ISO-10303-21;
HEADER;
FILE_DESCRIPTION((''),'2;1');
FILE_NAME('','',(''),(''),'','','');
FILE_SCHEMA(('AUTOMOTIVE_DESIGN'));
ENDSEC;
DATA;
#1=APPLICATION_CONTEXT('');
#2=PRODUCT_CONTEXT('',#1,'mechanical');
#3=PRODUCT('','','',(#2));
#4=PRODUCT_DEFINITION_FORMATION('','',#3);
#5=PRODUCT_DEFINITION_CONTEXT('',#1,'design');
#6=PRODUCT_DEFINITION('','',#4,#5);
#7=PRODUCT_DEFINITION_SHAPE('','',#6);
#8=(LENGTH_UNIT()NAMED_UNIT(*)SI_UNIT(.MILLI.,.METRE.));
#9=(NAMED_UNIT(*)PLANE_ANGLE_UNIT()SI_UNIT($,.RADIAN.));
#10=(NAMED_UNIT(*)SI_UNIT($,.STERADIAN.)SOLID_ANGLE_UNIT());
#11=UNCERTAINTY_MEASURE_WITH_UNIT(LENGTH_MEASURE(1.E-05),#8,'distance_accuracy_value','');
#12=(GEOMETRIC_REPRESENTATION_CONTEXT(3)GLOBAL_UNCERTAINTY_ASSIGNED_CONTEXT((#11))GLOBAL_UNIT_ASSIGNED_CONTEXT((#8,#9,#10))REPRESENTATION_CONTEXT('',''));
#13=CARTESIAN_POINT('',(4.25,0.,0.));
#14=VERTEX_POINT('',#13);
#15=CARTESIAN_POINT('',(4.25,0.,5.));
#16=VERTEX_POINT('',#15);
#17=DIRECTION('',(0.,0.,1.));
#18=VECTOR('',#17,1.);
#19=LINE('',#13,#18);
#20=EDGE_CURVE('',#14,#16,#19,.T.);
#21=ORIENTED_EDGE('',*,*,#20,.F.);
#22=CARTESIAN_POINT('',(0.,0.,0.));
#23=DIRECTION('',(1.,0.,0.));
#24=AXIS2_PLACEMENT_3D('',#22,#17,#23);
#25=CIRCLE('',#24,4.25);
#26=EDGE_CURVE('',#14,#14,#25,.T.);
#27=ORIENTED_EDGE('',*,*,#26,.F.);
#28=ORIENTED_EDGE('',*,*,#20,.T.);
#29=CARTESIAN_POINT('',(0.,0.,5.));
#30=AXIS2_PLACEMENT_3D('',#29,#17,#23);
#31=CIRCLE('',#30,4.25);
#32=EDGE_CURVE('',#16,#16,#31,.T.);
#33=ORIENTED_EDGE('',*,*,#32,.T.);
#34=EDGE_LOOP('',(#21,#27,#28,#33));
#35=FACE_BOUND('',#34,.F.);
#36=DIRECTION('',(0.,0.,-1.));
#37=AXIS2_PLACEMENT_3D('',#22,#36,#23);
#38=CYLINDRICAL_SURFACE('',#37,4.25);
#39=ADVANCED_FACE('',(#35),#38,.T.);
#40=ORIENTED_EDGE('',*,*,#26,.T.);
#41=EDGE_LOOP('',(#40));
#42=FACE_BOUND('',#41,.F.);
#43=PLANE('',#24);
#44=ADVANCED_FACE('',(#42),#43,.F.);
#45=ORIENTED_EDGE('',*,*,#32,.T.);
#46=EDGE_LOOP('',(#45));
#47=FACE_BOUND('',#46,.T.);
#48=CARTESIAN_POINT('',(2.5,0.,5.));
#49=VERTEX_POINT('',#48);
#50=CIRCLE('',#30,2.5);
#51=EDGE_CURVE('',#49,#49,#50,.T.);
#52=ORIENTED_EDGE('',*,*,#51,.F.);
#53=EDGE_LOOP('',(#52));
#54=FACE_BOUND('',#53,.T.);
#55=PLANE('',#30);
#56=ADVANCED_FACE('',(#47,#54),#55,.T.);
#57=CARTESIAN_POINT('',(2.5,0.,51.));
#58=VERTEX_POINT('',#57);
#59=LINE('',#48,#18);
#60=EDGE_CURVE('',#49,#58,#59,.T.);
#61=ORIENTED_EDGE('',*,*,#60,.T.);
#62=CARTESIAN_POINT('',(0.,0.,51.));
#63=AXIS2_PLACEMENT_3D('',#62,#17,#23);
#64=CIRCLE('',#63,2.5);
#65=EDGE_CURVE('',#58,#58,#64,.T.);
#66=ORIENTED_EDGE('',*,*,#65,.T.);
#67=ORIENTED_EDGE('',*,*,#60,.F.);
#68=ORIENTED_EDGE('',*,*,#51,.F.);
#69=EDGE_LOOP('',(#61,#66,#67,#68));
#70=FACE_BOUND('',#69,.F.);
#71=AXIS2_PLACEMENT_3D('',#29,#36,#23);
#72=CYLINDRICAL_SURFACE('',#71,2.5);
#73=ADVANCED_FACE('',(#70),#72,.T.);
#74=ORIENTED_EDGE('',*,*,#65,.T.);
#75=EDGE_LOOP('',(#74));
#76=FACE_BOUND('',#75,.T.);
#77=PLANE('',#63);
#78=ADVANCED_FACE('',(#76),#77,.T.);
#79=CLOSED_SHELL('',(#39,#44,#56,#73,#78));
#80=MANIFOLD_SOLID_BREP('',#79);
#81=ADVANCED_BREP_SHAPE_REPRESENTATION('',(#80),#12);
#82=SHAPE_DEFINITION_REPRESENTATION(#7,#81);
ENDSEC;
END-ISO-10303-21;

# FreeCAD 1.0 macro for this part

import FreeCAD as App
import Part
import Sketcher
Q = App.Units.Quantity

doc = App.newDocument("Part")
params = doc.addObject("Spreadsheet::Sheet", "Params")
for row, (alias, value) in enumerate([
    ("sketch1_diameter", "8.5 mm"),
    ("pad1_length", "5 mm"),
    ("sketch2_diameter", "5 mm"),
    ("pad2_length", "46 mm"),
], start=1):
    params.set(f"A{row}", alias)
    params.set(f"B{row}", "=" + value)
    params.setAlias(f"B{row}", alias)

body = doc.addObject("PartDesign::Body", "Body")

sketch1 = body.newObject("Sketcher::SketchObject", "Sketch")
sketch1.AttachmentSupport = (doc.getObject("XY_Plane"), [""])
sketch1.MapMode = "FlatFace"
sketch1.addGeometry(Part.Circle(App.Vector(0, 0, 0), App.Vector(0, 0, 1), 4.2), False)
sketch1.addConstraint([
    Sketcher.Constraint("Coincident", 0, 3, -1, 1),
    Sketcher.Constraint("Diameter", 0, Q("8.5 mm")),
])
sketch1.setExpression("Constraints[1]", "Params.sketch1_diameter")
pad1 = body.newObject("PartDesign::Pad", "Pad")
pad1.Profile = sketch1
pad1.setExpression("Length", "Params.pad1_length")

sketch2 = body.newObject("Sketcher::SketchObject", "Sketch001")
sketch2.AttachmentSupport = (doc.getObject("XY_Plane"), [""])
sketch2.MapMode = "FlatFace"
sketch2.AttachmentOffset = App.Placement(App.Vector(0, 0, 5), App.Rotation())
sketch2.addGeometry(Part.Circle(App.Vector(0, 0, 0), App.Vector(0, 0, 1), 2.5), False)
sketch2.addConstraint([
    Sketcher.Constraint("Coincident", 0, 3, -1, 1),
    Sketcher.Constraint("Diameter", 0, Q("5 mm")),
])
sketch2.setExpression("Constraints[1]", "Params.sketch2_diameter")
pad2 = body.newObject("PartDesign::Pad", "Pad001")
pad2.Profile = sketch2
pad2.setExpression("Length", "Params.pad2_length")

doc.recompute()
